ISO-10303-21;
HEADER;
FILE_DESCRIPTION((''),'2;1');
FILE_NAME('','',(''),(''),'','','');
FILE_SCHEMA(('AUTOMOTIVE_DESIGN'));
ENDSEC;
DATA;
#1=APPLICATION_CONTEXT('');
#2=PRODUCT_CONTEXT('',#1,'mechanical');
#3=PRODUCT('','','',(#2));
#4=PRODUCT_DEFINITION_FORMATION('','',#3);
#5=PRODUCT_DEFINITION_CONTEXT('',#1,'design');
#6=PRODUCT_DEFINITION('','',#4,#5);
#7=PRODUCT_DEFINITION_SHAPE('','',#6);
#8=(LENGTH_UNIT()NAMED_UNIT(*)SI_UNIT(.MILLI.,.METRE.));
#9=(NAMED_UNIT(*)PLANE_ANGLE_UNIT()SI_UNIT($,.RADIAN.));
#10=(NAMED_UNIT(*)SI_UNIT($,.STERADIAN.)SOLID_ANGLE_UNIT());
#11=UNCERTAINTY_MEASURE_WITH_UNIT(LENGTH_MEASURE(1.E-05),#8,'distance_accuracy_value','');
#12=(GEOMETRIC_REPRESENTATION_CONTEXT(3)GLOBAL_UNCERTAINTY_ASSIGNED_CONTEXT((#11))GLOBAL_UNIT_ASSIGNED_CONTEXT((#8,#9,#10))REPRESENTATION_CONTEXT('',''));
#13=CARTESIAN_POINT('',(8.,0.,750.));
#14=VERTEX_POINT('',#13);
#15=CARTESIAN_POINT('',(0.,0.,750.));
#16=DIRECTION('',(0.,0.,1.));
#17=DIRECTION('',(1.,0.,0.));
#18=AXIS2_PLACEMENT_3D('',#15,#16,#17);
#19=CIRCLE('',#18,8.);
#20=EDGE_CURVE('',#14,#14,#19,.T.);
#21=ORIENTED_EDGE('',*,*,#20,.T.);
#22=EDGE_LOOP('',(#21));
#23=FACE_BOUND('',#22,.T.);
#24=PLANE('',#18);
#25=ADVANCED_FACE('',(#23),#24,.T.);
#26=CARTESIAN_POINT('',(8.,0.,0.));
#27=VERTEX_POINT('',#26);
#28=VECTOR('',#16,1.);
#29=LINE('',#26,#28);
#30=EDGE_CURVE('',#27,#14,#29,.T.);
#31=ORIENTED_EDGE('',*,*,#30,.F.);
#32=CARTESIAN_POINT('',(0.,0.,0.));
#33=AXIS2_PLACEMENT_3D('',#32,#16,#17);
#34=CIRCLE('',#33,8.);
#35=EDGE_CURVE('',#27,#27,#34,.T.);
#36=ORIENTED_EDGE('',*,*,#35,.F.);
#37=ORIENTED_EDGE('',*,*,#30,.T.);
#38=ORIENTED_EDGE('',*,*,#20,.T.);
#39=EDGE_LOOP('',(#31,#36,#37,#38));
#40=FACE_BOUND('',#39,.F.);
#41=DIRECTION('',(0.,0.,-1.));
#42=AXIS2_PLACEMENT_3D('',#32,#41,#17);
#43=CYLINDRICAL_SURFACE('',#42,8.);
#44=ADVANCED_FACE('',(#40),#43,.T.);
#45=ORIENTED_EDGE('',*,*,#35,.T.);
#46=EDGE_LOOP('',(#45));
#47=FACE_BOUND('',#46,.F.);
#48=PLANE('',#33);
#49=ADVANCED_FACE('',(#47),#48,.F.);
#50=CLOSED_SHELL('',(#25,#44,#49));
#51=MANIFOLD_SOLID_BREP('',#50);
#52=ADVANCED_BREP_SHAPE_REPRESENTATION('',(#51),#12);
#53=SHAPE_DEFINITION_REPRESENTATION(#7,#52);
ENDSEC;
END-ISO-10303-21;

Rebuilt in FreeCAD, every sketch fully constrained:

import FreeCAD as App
import Part
import Sketcher

V = App.Vector
Q = App.Units.Quantity

doc = App.newDocument("Part")
body = doc.addObject("PartDesign::Body", "Body")

# Sketch on XY plane
sketch1 = body.newObject("Sketcher::SketchObject", "Sketch")
sketch1.AttachmentSupport = (doc.getObject("XY_Plane"), [""])
sketch1.MapMode = "FlatFace"
sketch1.addGeometry(Part.Circle(V(0, 0, 0), V(0, 0, 1), 8), False)
sketch1.addConstraint([
    Sketcher.Constraint("Coincident", 0, 3, -1, 1),
    Sketcher.Constraint("Diameter", 0, Q("16 mm")),
])
pad1 = body.newObject("PartDesign::Pad", "Pad")
pad1.Profile = sketch1
pad1.Length = 750

doc.recompute()
